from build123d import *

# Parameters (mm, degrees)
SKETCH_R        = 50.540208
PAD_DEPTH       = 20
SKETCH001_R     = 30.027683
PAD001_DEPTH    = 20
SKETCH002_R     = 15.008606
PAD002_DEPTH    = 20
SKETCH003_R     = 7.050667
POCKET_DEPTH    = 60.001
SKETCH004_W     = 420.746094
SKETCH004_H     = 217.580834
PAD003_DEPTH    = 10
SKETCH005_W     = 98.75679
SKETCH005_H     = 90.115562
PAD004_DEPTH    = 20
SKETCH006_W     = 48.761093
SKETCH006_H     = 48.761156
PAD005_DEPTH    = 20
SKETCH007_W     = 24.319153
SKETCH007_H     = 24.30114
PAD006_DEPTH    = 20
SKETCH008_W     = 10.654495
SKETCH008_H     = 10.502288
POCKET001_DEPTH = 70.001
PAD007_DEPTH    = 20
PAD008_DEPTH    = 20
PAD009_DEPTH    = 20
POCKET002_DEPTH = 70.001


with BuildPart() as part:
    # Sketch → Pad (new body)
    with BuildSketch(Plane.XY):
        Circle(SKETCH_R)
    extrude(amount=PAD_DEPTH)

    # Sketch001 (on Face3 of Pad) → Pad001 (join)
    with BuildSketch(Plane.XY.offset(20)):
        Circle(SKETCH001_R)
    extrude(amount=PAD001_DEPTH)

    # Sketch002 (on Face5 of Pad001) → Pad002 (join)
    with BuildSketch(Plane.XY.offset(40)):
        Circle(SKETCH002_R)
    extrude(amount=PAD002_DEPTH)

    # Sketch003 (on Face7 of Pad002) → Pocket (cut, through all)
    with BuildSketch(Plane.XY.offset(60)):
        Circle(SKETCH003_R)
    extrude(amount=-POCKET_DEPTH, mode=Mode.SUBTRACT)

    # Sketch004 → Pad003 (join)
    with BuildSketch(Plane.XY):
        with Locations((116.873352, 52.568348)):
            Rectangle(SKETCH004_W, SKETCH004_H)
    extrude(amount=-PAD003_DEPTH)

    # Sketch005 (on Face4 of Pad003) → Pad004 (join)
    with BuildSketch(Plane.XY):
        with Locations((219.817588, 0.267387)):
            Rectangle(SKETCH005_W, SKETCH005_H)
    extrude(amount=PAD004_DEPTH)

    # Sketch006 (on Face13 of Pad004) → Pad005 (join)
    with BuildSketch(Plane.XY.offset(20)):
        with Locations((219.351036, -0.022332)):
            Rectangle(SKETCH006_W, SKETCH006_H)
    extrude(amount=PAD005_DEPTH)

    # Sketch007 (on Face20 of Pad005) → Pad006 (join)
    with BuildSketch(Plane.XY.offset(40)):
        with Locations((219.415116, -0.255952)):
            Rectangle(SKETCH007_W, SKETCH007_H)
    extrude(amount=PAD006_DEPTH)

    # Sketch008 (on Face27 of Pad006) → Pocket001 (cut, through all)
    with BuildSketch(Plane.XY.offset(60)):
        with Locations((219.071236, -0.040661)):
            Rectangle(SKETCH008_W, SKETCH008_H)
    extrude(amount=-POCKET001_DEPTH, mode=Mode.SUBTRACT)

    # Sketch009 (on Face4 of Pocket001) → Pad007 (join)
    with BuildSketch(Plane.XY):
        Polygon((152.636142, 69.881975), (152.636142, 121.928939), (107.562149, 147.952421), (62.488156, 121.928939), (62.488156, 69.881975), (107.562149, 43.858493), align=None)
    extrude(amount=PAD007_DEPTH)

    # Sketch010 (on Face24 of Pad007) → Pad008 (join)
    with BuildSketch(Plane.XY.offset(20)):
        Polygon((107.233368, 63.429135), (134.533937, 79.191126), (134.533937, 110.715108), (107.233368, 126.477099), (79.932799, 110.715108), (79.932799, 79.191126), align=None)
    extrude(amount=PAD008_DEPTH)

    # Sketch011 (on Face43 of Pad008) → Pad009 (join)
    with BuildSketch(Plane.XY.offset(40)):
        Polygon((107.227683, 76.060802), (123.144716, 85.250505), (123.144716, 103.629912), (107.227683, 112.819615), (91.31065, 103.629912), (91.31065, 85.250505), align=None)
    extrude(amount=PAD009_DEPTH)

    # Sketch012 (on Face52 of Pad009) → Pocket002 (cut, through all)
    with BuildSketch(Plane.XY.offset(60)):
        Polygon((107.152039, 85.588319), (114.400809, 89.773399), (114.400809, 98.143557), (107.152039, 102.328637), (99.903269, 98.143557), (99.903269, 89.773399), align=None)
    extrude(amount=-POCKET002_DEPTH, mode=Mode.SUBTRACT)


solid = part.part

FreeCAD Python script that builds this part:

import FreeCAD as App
import Part
import Sketcher
from FreeCAD import Vector
Q = App.Units.Quantity

doc = App.newDocument("Part")
params = doc.addObject("Spreadsheet::Sheet", "Params")
for row, (alias, value) in enumerate([
    ("pad1_length", "20 mm"),
    ("pad2_length", "20 mm"),
    ("pad3_length", "20 mm"),
    ("pad4_length", "10 mm"),
    ("pad5_length", "20 mm"),
    ("pad6_length", "20 mm"),
    ("pad7_length", "20 mm"),
    ("pad8_length", "20 mm"),
    ("pad9_length", "20 mm"),
    ("pad10_length", "20 mm"),
], start=1):
    params.set(f"A{row}", alias)
    params.set(f"B{row}", "=" + value)
    params.setAlias(f"B{row}", alias)

body = doc.addObject("PartDesign::Body", "Body")

# Sketch on XY plane
sketch1 = doc.addObject("Sketcher::SketchObject", "Sketch")
body.addObject(sketch1)
sketch1.AttachmentSupport = (doc.XY_Plane, [""])
sketch1.MapMode = "FlatFace"
sketch1.addGeometry(Part.Circle(Vector(0, 0, 0), Vector(0, 0, 1), 51), False)
sketch1.addConstraint(Sketcher.Constraint("Coincident", 0, 3, -1, 1))
sketch1.addConstraint(Sketcher.Constraint("Diameter", 0, Q("101.080416 mm")))
pad1 = doc.addObject("PartDesign::Pad", "Pad")
body.addObject(pad1)
pad1.Profile = sketch1
pad1.setExpression("Length", "Params.pad1_length")

# Sketch on XY plane
sketch2 = doc.addObject("Sketcher::SketchObject", "Sketch001")
body.addObject(sketch2)
sketch2.AttachmentSupport = (doc.XY_Plane, [""])
sketch2.MapMode = "FlatFace"
sketch2.AttachmentOffset = App.Placement(Vector(0, 0, 20), App.Rotation())
sketch2.addGeometry(Part.Circle(Vector(0, 0, 0), Vector(0, 0, 1), 30), False)
sketch2.addConstraint(Sketcher.Constraint("Coincident", 0, 3, -1, 1))
sketch2.addConstraint(Sketcher.Constraint("Diameter", 0, Q("60.055366 mm")))
pad2 = doc.addObject("PartDesign::Pad", "Pad001")
body.addObject(pad2)
pad2.Profile = sketch2
pad2.setExpression("Length", "Params.pad2_length")

# Sketch on XY plane
sketch3 = doc.addObject("Sketcher::SketchObject", "Sketch002")
body.addObject(sketch3)
sketch3.AttachmentSupport = (doc.XY_Plane, [""])
sketch3.MapMode = "FlatFace"
sketch3.AttachmentOffset = App.Placement(Vector(0, 0, 40), App.Rotation())
sketch3.addGeometry(Part.Circle(Vector(0, 0, 0), Vector(0, 0, 1), 15), False)
sketch3.addConstraint(Sketcher.Constraint("Coincident", 0, 3, -1, 1))
sketch3.addConstraint(Sketcher.Constraint("Diameter", 0, Q("30.017212 mm")))
pad3 = doc.addObject("PartDesign::Pad", "Pad002")
body.addObject(pad3)
pad3.Profile = sketch3
pad3.setExpression("Length", "Params.pad3_length")

# Sketch on XY plane
sketch4 = doc.addObject("Sketcher::SketchObject", "Sketch003")
body.addObject(sketch4)
sketch4.AttachmentSupport = (doc.XY_Plane, [""])
sketch4.MapMode = "FlatFace"
sketch4.AttachmentOffset = App.Placement(Vector(0, 0, 60), App.Rotation())
sketch4.addGeometry(Part.Circle(Vector(0, 0, 0), Vector(0, 0, 1), 7), False)
sketch4.addConstraint(Sketcher.Constraint("Coincident", 0, 3, -1, 1))
sketch4.addConstraint(Sketcher.Constraint("Diameter", 0, Q("14.101334 mm")))
pocket1 = doc.addObject("PartDesign::Pocket", "Pocket")
body.addObject(pocket1)
pocket1.Profile = sketch4
pocket1.Type = "ThroughAll"

# Sketch on XY plane
sketch5 = doc.addObject("Sketcher::SketchObject", "Sketch004")
body.addObject(sketch5)
sketch5.AttachmentSupport = (doc.XY_Plane, [""])
sketch5.MapMode = "FlatFace"
sketch5.addGeometry(Part.LineSegment(Vector(-93, 161, 0), Vector(-93, -56, 0)), False)
sketch5.addGeometry(Part.LineSegment(Vector(-93, -56, 0), Vector(327, -56, 0)), False)
sketch5.addGeometry(Part.LineSegment(Vector(327, -56, 0), Vector(327, 161, 0)), False)
sketch5.addGeometry(Part.LineSegment(Vector(327, 161, 0), Vector(-93, 161, 0)), False)
sketch5.addConstraint(Sketcher.Constraint("Coincident", 0, 2, 1, 1))
sketch5.addConstraint(Sketcher.Constraint("Coincident", 1, 2, 2, 1))
sketch5.addConstraint(Sketcher.Constraint("Coincident", 2, 2, 3, 1))
sketch5.addConstraint(Sketcher.Constraint("Coincident", 3, 2, 0, 1))
sketch5.addConstraint(Sketcher.Constraint("Vertical", 0))
sketch5.addConstraint(Sketcher.Constraint("Horizontal", 1))
sketch5.addConstraint(Sketcher.Constraint("Vertical", 2))
sketch5.addConstraint(Sketcher.Constraint("Horizontal", 3))
sketch5.addConstraint(Sketcher.Constraint("DistanceX", -1, 1, 1, 2, Q("327.246399 mm")))
sketch5.addConstraint(Sketcher.Constraint("DistanceX", 1, 1, 1, 2, Q("420.746094 mm")))
sketch5.addConstraint(Sketcher.Constraint("DistanceY", 0, 2, 0, 1, Q("217.580834 mm")))
sketch5.addConstraint(Sketcher.Constraint("DistanceY", 0, 2, -1, 1, Q("56.222069 mm")))
pad4 = doc.addObject("PartDesign::Pad", "Pad003")
body.addObject(pad4)
pad4.Profile = sketch5
pad4.setExpression("Length", "Params.pad4_length")
pad4.Reversed = True

# Sketch on XY plane
sketch6 = doc.addObject("Sketcher::SketchObject", "Sketch005")
body.addObject(sketch6)
sketch6.AttachmentSupport = (doc.XY_Plane, [""])
sketch6.MapMode = "FlatFace"
sketch6.addGeometry(Part.LineSegment(Vector(170, 45, 0), Vector(170, -45, 0)), False)
sketch6.addGeometry(Part.LineSegment(Vector(170, -45, 0), Vector(269, -45, 0)), False)
sketch6.addGeometry(Part.LineSegment(Vector(269, -45, 0), Vector(269, 45, 0)), False)
sketch6.addGeometry(Part.LineSegment(Vector(269, 45, 0), Vector(170, 45, 0)), False)
sketch6.addConstraint(Sketcher.Constraint("Coincident", 0, 2, 1, 1))
sketch6.addConstraint(Sketcher.Constraint("Coincident", 1, 2, 2, 1))
sketch6.addConstraint(Sketcher.Constraint("Coincident", 2, 2, 3, 1))
sketch6.addConstraint(Sketcher.Constraint("Coincident", 3, 2, 0, 1))
sketch6.addConstraint(Sketcher.Constraint("Vertical", 0))
sketch6.addConstraint(Sketcher.Constraint("Horizontal", 1))
sketch6.addConstraint(Sketcher.Constraint("Vertical", 2))
sketch6.addConstraint(Sketcher.Constraint("Horizontal", 3))
sketch6.addConstraint(Sketcher.Constraint("DistanceX", 1, 1, 1, 2, Q("98.75679 mm")))
sketch6.addConstraint(Sketcher.Constraint("DistanceY", 0, 2, 0, 1, Q("90.115562 mm")))
sketch6.addConstraint(Sketcher.Constraint("DistanceX", -1, 1, 0, 2, Q("170.439193 mm")))
sketch6.addConstraint(Sketcher.Constraint("DistanceY", 0, 2, -1, 1, Q("44.790394 mm")))
pad5 = doc.addObject("PartDesign::Pad", "Pad004")
body.addObject(pad5)
pad5.Profile = sketch6
pad5.setExpression("Length", "Params.pad5_length")

# Sketch on XY plane
sketch7 = doc.addObject("Sketcher::SketchObject", "Sketch006")
body.addObject(sketch7)
sketch7.AttachmentSupport = (doc.XY_Plane, [""])
sketch7.MapMode = "FlatFace"
sketch7.AttachmentOffset = App.Placement(Vector(0, 0, 20), App.Rotation())
sketch7.addGeometry(Part.LineSegment(Vector(195, 24, 0), Vector(195, -24, 0)), False)
sketch7.addGeometry(Part.LineSegment(Vector(195, -24, 0), Vector(244, -24, 0)), False)
sketch7.addGeometry(Part.LineSegment(Vector(244, -24, 0), Vector(244, 24, 0)), False)
sketch7.addGeometry(Part.LineSegment(Vector(244, 24, 0), Vector(195, 24, 0)), False)
sketch7.addConstraint(Sketcher.Constraint("Coincident", 0, 2, 1, 1))
sketch7.addConstraint(Sketcher.Constraint("Coincident", 1, 2, 2, 1))
sketch7.addConstraint(Sketcher.Constraint("Coincident", 2, 2, 3, 1))
sketch7.addConstraint(Sketcher.Constraint("Coincident", 3, 2, 0, 1))
sketch7.addConstraint(Sketcher.Constraint("Vertical", 0))
sketch7.addConstraint(Sketcher.Constraint("Horizontal", 1))
sketch7.addConstraint(Sketcher.Constraint("Vertical", 2))
sketch7.addConstraint(Sketcher.Constraint("Horizontal", 3))
sketch7.addConstraint(Sketcher.Constraint("DistanceX", 1, 1, 1, 2, Q("48.761093 mm")))
sketch7.addConstraint(Sketcher.Constraint("DistanceY", 0, 2, 0, 1, Q("48.761156 mm")))
sketch7.addConstraint(Sketcher.Constraint("DistanceX", -1, 1, 0, 2, Q("194.97049 mm")))
sketch7.addConstraint(Sketcher.Constraint("DistanceY", 0, 2, -1, 1, Q("24.40291 mm")))
pad6 = doc.addObject("PartDesign::Pad", "Pad005")
body.addObject(pad6)
pad6.Profile = sketch7
pad6.setExpression("Length", "Params.pad6_length")

# Sketch on XY plane
sketch8 = doc.addObject("Sketcher::SketchObject", "Sketch007")
body.addObject(sketch8)
sketch8.AttachmentSupport = (doc.XY_Plane, [""])
sketch8.MapMode = "FlatFace"
sketch8.AttachmentOffset = App.Placement(Vector(0, 0, 40), App.Rotation())
sketch8.addGeometry(Part.LineSegment(Vector(207, 12, 0), Vector(207, -12, 0)), False)
sketch8.addGeometry(Part.LineSegment(Vector(207, -12, 0), Vector(232, -12, 0)), False)
sketch8.addGeometry(Part.LineSegment(Vector(232, -12, 0), Vector(232, 12, 0)), False)
sketch8.addGeometry(Part.LineSegment(Vector(232, 12, 0), Vector(207, 12, 0)), False)
sketch8.addConstraint(Sketcher.Constraint("Coincident", 0, 2, 1, 1))
sketch8.addConstraint(Sketcher.Constraint("Coincident", 1, 2, 2, 1))
sketch8.addConstraint(Sketcher.Constraint("Coincident", 2, 2, 3, 1))
sketch8.addConstraint(Sketcher.Constraint("Coincident", 3, 2, 0, 1))
sketch8.addConstraint(Sketcher.Constraint("Vertical", 0))
sketch8.addConstraint(Sketcher.Constraint("Horizontal", 1))
sketch8.addConstraint(Sketcher.Constraint("Vertical", 2))
sketch8.addConstraint(Sketcher.Constraint("Horizontal", 3))
sketch8.addConstraint(Sketcher.Constraint("DistanceY", 0, 2, 0, 1, Q("24.30114 mm")))
sketch8.addConstraint(Sketcher.Constraint("DistanceX", 1, 1, 1, 2, Q("24.319153 mm")))
sketch8.addConstraint(Sketcher.Constraint("DistanceX", -1, 1, 0, 2, Q("207.255539 mm")))
sketch8.addConstraint(Sketcher.Constraint("DistanceY", 0, 2, -1, 1, Q("12.406522 mm")))
pad7 = doc.addObject("PartDesign::Pad", "Pad006")
body.addObject(pad7)
pad7.Profile = sketch8
pad7.setExpression("Length", "Params.pad7_length")

# Sketch on XY plane
sketch9 = doc.addObject("Sketcher::SketchObject", "Sketch008")
body.addObject(sketch9)
sketch9.AttachmentSupport = (doc.XY_Plane, [""])
sketch9.MapMode = "FlatFace"
sketch9.AttachmentOffset = App.Placement(Vector(0, 0, 60), App.Rotation())
sketch9.addGeometry(Part.LineSegment(Vector(214, 5, 0), Vector(214, -5, 0)), False)
sketch9.addGeometry(Part.LineSegment(Vector(214, -5, 0), Vector(224, -5, 0)), False)
sketch9.addGeometry(Part.LineSegment(Vector(224, -5, 0), Vector(224, 5, 0)), False)
sketch9.addGeometry(Part.LineSegment(Vector(224, 5, 0), Vector(214, 5, 0)), False)
sketch9.addConstraint(Sketcher.Constraint("Coincident", 0, 2, 1, 1))
sketch9.addConstraint(Sketcher.Constraint("Coincident", 1, 2, 2, 1))
sketch9.addConstraint(Sketcher.Constraint("Coincident", 2, 2, 3, 1))
sketch9.addConstraint(Sketcher.Constraint("Coincident", 3, 2, 0, 1))
sketch9.addConstraint(Sketcher.Constraint("Vertical", 0))
sketch9.addConstraint(Sketcher.Constraint("Horizontal", 1))
sketch9.addConstraint(Sketcher.Constraint("Vertical", 2))
sketch9.addConstraint(Sketcher.Constraint("Horizontal", 3))
sketch9.addConstraint(Sketcher.Constraint("DistanceX", 1, 1, 1, 2, Q("10.654495 mm")))
sketch9.addConstraint(Sketcher.Constraint("DistanceY", 0, 2, 0, 1, Q("10.502288 mm")))
sketch9.addConstraint(Sketcher.Constraint("DistanceX", -1, 1, 0, 2, Q("213.743989 mm")))
sketch9.addConstraint(Sketcher.Constraint("DistanceY", 0, 2, -1, 1, Q("5.291805 mm")))
pocket2 = doc.addObject("PartDesign::Pocket", "Pocket001")
body.addObject(pocket2)
pocket2.Profile = sketch9
pocket2.Type = "ThroughAll"

# Sketch on XY plane
sketch10 = doc.addObject("Sketcher::SketchObject", "Sketch009")
body.addObject(sketch10)
sketch10.AttachmentSupport = (doc.XY_Plane, [""])
sketch10.MapMode = "FlatFace"
sketch10.addGeometry(Part.LineSegment(Vector(153, 70, 0), Vector(153, 122, 0)), False)
sketch10.addGeometry(Part.LineSegment(Vector(153, 122, 0), Vector(108, 148, 0)), False)
sketch10.addGeometry(Part.LineSegment(Vector(108, 148, 0), Vector(62, 122, 0)), False)
sketch10.addGeometry(Part.LineSegment(Vector(62, 122, 0), Vector(62, 70, 0)), False)
sketch10.addGeometry(Part.LineSegment(Vector(62, 70, 0), Vector(108, 44, 0)), False)
sketch10.addGeometry(Part.LineSegment(Vector(108, 44, 0), Vector(153, 70, 0)), False)
sketch10.addConstraint(Sketcher.Constraint("Coincident", 0, 2, 1, 1))
sketch10.addConstraint(Sketcher.Constraint("Coincident", 1, 2, 2, 1))
sketch10.addConstraint(Sketcher.Constraint("Coincident", 2, 2, 3, 1))
sketch10.addConstraint(Sketcher.Constraint("Coincident", 3, 2, 4, 1))
sketch10.addConstraint(Sketcher.Constraint("Coincident", 4, 2, 5, 1))
sketch10.addConstraint(Sketcher.Constraint("Coincident", 5, 2, 0, 1))
sketch10.addConstraint(Sketcher.Constraint("Vertical", 0))
sketch10.addConstraint(Sketcher.Constraint("Vertical", 3))
sketch10.addConstraint(Sketcher.Constraint("Parallel", 1, 4))
sketch10.addConstraint(Sketcher.Constraint("Parallel", 2, 5))
sketch10.addConstraint(Sketcher.Constraint("Horizontal", 0, 2, 2, 2))
sketch10.addConstraint(Sketcher.Constraint("Horizontal", 3, 2, 5, 2))
sketch10.addConstraint(Sketcher.Constraint("Vertical", 1, 2, 4, 2))
sketch10.addConstraint(Sketcher.Constraint("Angle", 1, Q("150 deg")))
sketch10.addConstraint(Sketcher.Constraint("DistanceY", 0, 1, 0, 2, Q("52.046964 mm")))
sketch10.addConstraint(Sketcher.Constraint("DistanceX", -1, 1, 0, 2, Q("152.636142 mm")))
sketch10.addConstraint(Sketcher.Constraint("DistanceY", -1, 1, 0, 2, Q("121.928939 mm")))
sketch10.addConstraint(Sketcher.Constraint("DistanceX", -1, 1, 1, 2, Q("107.562149 mm")))
pad8 = doc.addObject("PartDesign::Pad", "Pad007")
body.addObject(pad8)
pad8.Profile = sketch10
pad8.setExpression("Length", "Params.pad8_length")

# Sketch on XY plane
sketch11 = doc.addObject("Sketcher::SketchObject", "Sketch010")
body.addObject(sketch11)
sketch11.AttachmentSupport = (doc.XY_Plane, [""])
sketch11.MapMode = "FlatFace"
sketch11.AttachmentOffset = App.Placement(Vector(0, 0, 20), App.Rotation())
sketch11.addGeometry(Part.LineSegment(Vector(107, 63, 0), Vector(135, 79, 0)), False)
sketch11.addGeometry(Part.LineSegment(Vector(135, 79, 0), Vector(135, 111, 0)), False)
sketch11.addGeometry(Part.LineSegment(Vector(135, 111, 0), Vector(107, 126, 0)), False)
sketch11.addGeometry(Part.LineSegment(Vector(107, 126, 0), Vector(80, 111, 0)), False)
sketch11.addGeometry(Part.LineSegment(Vector(80, 111, 0), Vector(80, 79, 0)), False)
sketch11.addGeometry(Part.LineSegment(Vector(80, 79, 0), Vector(107, 63, 0)), False)
sketch11.addConstraint(Sketcher.Constraint("Coincident", 0, 2, 1, 1))
sketch11.addConstraint(Sketcher.Constraint("Coincident", 1, 2, 2, 1))
sketch11.addConstraint(Sketcher.Constraint("Coincident", 2, 2, 3, 1))
sketch11.addConstraint(Sketcher.Constraint("Coincident", 3, 2, 4, 1))
sketch11.addConstraint(Sketcher.Constraint("Coincident", 4, 2, 5, 1))
sketch11.addConstraint(Sketcher.Constraint("Coincident", 5, 2, 0, 1))
sketch11.addConstraint(Sketcher.Constraint("Vertical", 1))
sketch11.addConstraint(Sketcher.Constraint("Vertical", 4))
sketch11.addConstraint(Sketcher.Constraint("Parallel", 0, 3))
sketch11.addConstraint(Sketcher.Constraint("Parallel", 2, 5))
sketch11.addConstraint(Sketcher.Constraint("Horizontal", 1, 2, 3, 2))
sketch11.addConstraint(Sketcher.Constraint("Horizontal", 0, 2, 4, 2))
sketch11.addConstraint(Sketcher.Constraint("Vertical", 2, 2, 5, 2))
sketch11.addConstraint(Sketcher.Constraint("Angle", 0, Q("30 deg")))
sketch11.addConstraint(Sketcher.Constraint("DistanceY", -1, 1, 2, 2, Q("126.477099 mm")))
sketch11.addConstraint(Sketcher.Constraint("DistanceX", -1, 1, 3, 2, Q("79.932799 mm")))
sketch11.addConstraint(Sketcher.Constraint("Distance", 0, Q("31.523982 mm")))
sketch11.addConstraint(Sketcher.Constraint("DistanceY", 1, 1, 1, 2, Q("31.523982 mm")))
pad9 = doc.addObject("PartDesign::Pad", "Pad008")
body.addObject(pad9)
pad9.Profile = sketch11
pad9.setExpression("Length", "Params.pad9_length")

# Sketch on XY plane
sketch12 = doc.addObject("Sketcher::SketchObject", "Sketch011")
body.addObject(sketch12)
sketch12.AttachmentSupport = (doc.XY_Plane, [""])
sketch12.MapMode = "FlatFace"
sketch12.AttachmentOffset = App.Placement(Vector(0, 0, 40), App.Rotation())
sketch12.addGeometry(Part.LineSegment(Vector(107, 76, 0), Vector(123, 85, 0)), False)
sketch12.addGeometry(Part.LineSegment(Vector(123, 85, 0), Vector(123, 104, 0)), False)
sketch12.addGeometry(Part.LineSegment(Vector(123, 104, 0), Vector(107, 113, 0)), False)
sketch12.addGeometry(Part.LineSegment(Vector(107, 113, 0), Vector(91, 104, 0)), False)
sketch12.addGeometry(Part.LineSegment(Vector(91, 104, 0), Vector(91, 85, 0)), False)
sketch12.addGeometry(Part.LineSegment(Vector(91, 85, 0), Vector(107, 76, 0)), False)
sketch12.addConstraint(Sketcher.Constraint("Coincident", 0, 2, 1, 1))
sketch12.addConstraint(Sketcher.Constraint("Coincident", 1, 2, 2, 1))
sketch12.addConstraint(Sketcher.Constraint("Coincident", 2, 2, 3, 1))
sketch12.addConstraint(Sketcher.Constraint("Coincident", 3, 2, 4, 1))
sketch12.addConstraint(Sketcher.Constraint("Coincident", 4, 2, 5, 1))
sketch12.addConstraint(Sketcher.Constraint("Coincident", 5, 2, 0, 1))
sketch12.addConstraint(Sketcher.Constraint("Vertical", 1))
sketch12.addConstraint(Sketcher.Constraint("Vertical", 4))
sketch12.addConstraint(Sketcher.Constraint("Parallel", 0, 3))
sketch12.addConstraint(Sketcher.Constraint("Parallel", 2, 5))
sketch12.addConstraint(Sketcher.Constraint("Horizontal", 1, 2, 3, 2))
sketch12.addConstraint(Sketcher.Constraint("Horizontal", 0, 2, 4, 2))
sketch12.addConstraint(Sketcher.Constraint("Vertical", 2, 2, 5, 2))
sketch12.addConstraint(Sketcher.Constraint("Angle", 0, Q("29.999999 deg")))
sketch12.addConstraint(Sketcher.Constraint("DistanceY", -1, 1, 5, 2, Q("76.060802 mm")))
sketch12.addConstraint(Sketcher.Constraint("DistanceY", 1, 1, 1, 2, Q("18.379407 mm")))
sketch12.addConstraint(Sketcher.Constraint("DistanceX", -1, 1, 3, 2, Q("91.31065 mm")))
sketch12.addConstraint(Sketcher.Constraint("DistanceY", 0, 2, 2, 2, Q("27.56911 mm")))
pad10 = doc.addObject("PartDesign::Pad", "Pad009")
body.addObject(pad10)
pad10.Profile = sketch12
pad10.setExpression("Length", "Params.pad10_length")

# Sketch on XY plane
sketch13 = doc.addObject("Sketcher::SketchObject", "Sketch012")
body.addObject(sketch13)
sketch13.AttachmentSupport = (doc.XY_Plane, [""])
sketch13.MapMode = "FlatFace"
sketch13.AttachmentOffset = App.Placement(Vector(0, 0, 60), App.Rotation())
sketch13.addGeometry(Part.LineSegment(Vector(107, 86, 0), Vector(114, 90, 0)), False)
sketch13.addGeometry(Part.LineSegment(Vector(114, 90, 0), Vector(114, 98, 0)), False)
sketch13.addGeometry(Part.LineSegment(Vector(114, 98, 0), Vector(107, 102, 0)), False)
sketch13.addGeometry(Part.LineSegment(Vector(107, 102, 0), Vector(100, 98, 0)), False)
sketch13.addGeometry(Part.LineSegment(Vector(100, 98, 0), Vector(100, 90, 0)), False)
sketch13.addGeometry(Part.LineSegment(Vector(100, 90, 0), Vector(107, 86, 0)), False)
sketch13.addConstraint(Sketcher.Constraint("Coincident", 0, 2, 1, 1))
sketch13.addConstraint(Sketcher.Constraint("Coincident", 1, 2, 2, 1))
sketch13.addConstraint(Sketcher.Constraint("Coincident", 2, 2, 3, 1))
sketch13.addConstraint(Sketcher.Constraint("Coincident", 3, 2, 4, 1))
sketch13.addConstraint(Sketcher.Constraint("Coincident", 4, 2, 5, 1))
sketch13.addConstraint(Sketcher.Constraint("Coincident", 5, 2, 0, 1))
sketch13.addConstraint(Sketcher.Constraint("Vertical", 1))
sketch13.addConstraint(Sketcher.Constraint("Vertical", 4))
sketch13.addConstraint(Sketcher.Constraint("Parallel", 0, 3))
sketch13.addConstraint(Sketcher.Constraint("Parallel", 2, 5))
sketch13.addConstraint(Sketcher.Constraint("Horizontal", 1, 2, 3, 2))
sketch13.addConstraint(Sketcher.Constraint("Horizontal", 0, 2, 4, 2))
sketch13.addConstraint(Sketcher.Constraint("Vertical", 2, 2, 5, 2))
sketch13.addConstraint(Sketcher.Constraint("Angle", 0, Q("30.000004 deg")))
sketch13.addConstraint(Sketcher.Constraint("DistanceY", 1, 1, 1, 2, Q("8.370158 mm")))
sketch13.addConstraint(Sketcher.Constraint("DistanceY", -1, 1, 0, 2, Q("89.773399 mm")))
sketch13.addConstraint(Sketcher.Constraint("Distance", 0, Q("8.370159 mm")))
sketch13.addConstraint(Sketcher.Constraint("DistanceX", -1, 1, 0, 2, Q("114.400809 mm")))
pocket3 = doc.addObject("PartDesign::Pocket", "Pocket002")
body.addObject(pocket3)
pocket3.Profile = sketch13
pocket3.Type = "ThroughAll"

doc.recompute()
